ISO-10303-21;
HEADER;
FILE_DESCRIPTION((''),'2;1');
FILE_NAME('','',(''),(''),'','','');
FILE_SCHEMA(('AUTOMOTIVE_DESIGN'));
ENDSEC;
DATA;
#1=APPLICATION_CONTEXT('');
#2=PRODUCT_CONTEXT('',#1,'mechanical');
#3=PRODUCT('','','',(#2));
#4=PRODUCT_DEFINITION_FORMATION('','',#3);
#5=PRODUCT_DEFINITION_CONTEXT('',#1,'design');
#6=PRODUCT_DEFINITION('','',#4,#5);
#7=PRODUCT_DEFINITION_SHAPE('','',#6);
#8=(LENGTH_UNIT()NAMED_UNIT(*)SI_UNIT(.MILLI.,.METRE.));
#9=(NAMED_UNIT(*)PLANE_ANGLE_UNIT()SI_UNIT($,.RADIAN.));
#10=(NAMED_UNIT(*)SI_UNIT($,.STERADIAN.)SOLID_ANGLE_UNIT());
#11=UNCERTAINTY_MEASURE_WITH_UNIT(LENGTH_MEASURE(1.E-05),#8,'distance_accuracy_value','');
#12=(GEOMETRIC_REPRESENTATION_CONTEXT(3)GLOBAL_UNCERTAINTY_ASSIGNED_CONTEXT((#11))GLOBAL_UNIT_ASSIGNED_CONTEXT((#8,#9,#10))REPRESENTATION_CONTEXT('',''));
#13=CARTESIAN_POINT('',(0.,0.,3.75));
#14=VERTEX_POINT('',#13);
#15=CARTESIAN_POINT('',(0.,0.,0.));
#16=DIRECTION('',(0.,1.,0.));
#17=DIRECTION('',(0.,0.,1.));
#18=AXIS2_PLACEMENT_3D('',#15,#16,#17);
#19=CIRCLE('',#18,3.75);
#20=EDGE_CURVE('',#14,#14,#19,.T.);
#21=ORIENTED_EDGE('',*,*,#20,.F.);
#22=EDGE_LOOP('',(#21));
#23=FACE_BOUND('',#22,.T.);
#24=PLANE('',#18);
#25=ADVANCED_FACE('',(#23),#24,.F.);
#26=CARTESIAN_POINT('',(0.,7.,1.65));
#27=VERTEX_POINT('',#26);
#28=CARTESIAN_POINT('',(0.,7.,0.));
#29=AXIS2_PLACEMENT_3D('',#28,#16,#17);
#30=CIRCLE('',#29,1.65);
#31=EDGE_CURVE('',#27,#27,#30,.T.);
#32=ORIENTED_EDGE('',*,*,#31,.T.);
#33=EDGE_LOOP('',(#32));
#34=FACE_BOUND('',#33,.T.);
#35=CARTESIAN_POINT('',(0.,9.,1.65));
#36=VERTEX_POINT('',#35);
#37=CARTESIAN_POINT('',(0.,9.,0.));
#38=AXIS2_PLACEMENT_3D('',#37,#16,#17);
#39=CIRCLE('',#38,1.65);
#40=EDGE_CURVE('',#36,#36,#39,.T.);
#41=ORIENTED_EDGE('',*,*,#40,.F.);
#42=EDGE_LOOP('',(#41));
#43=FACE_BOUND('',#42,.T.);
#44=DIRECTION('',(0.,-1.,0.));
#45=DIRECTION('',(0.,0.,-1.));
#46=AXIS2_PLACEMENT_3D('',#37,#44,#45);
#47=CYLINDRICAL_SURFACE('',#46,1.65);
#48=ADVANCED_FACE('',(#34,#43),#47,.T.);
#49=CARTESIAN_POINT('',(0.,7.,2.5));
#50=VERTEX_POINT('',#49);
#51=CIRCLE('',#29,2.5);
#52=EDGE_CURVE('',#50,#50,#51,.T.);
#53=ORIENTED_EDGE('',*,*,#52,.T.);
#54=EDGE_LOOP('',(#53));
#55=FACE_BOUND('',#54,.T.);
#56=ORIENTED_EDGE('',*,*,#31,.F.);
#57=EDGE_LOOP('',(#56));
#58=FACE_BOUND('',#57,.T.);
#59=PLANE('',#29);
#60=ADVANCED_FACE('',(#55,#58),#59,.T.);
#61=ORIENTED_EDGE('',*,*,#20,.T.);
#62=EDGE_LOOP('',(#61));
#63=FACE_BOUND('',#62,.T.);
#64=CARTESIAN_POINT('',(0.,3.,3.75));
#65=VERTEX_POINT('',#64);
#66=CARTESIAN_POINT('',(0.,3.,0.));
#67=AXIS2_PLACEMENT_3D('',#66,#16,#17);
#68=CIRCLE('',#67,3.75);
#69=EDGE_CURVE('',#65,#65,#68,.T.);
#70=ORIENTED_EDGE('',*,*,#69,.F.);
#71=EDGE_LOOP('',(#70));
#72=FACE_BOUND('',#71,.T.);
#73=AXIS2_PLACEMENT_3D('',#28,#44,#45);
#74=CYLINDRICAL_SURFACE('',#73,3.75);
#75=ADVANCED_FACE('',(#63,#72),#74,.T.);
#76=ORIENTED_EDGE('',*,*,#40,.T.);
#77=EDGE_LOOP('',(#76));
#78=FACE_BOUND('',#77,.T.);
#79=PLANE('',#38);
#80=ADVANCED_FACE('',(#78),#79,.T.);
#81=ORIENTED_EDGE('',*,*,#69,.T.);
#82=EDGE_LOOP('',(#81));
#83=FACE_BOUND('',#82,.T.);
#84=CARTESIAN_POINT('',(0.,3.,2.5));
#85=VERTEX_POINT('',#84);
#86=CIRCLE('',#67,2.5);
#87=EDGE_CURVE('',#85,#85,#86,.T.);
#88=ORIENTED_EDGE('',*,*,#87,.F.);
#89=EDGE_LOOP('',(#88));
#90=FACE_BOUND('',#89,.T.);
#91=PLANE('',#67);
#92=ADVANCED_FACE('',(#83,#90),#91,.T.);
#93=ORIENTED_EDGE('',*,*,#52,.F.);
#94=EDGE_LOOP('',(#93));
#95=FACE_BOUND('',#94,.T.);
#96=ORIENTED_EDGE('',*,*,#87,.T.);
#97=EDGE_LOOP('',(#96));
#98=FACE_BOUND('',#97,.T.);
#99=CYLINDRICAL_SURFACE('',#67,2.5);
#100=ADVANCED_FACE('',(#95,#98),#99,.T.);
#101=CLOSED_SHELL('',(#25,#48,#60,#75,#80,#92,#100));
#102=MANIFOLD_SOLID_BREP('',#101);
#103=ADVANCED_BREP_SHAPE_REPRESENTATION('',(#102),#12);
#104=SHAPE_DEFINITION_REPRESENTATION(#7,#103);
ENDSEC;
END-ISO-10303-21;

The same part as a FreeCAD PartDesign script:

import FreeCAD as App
import Part
import Sketcher

doc = App.newDocument("Part")
params = doc.addObject("Spreadsheet::Sheet", "Params")
for row, (alias, value) in enumerate([
    ("sketch1_diameter", "7.5 mm"),
    ("pad1_length", "7 mm"),
    ("sketch2_diameter", "5 mm"),
    ("sketch2_diameter2", "7.5 mm"),
    ("pocket1_length", "4 mm"),
    ("sketch3_diameter", "3.3 mm"),
    ("pad2_length", "2 mm"),
], start=1):
    params.set(f"A{row}", alias)
    params.set(f"B{row}", "=" + value)
    params.setAlias(f"B{row}", alias)

body = doc.addObject("PartDesign::Body", "Body")

sketch1 = doc.addObject("Sketcher::SketchObject", "Sketch")
body.addObject(sketch1)
sketch1.AttachmentSupport = (doc.XZ_Plane, [""])
sketch1.MapMode = "FlatFace"
sketch1.addGeometry(Part.Circle(App.Vector(0, 0, 0), App.Vector(0, 0, 1), 3.8), False)
sketch1.addConstraint([
    Sketcher.Constraint("Coincident", 0, 3, -1, 1),
    Sketcher.Constraint("Diameter", 0, 7.5),
])
sketch1.setExpression("Constraints[1]", "Params.sketch1_diameter")
pad1 = doc.addObject("PartDesign::Pad", "Pad")
body.addObject(pad1)
pad1.Profile = sketch1
pad1.setExpression("Length", "Params.pad1_length")
pad1.Reversed = True

sketch2 = doc.addObject("Sketcher::SketchObject", "Sketch001")
body.addObject(sketch2)
sketch2.AttachmentSupport = (doc.XZ_Plane, [""])
sketch2.MapMode = "FlatFace"
sketch2.AttachmentOffset = App.Placement(App.Vector(0, 0, -7), App.Rotation())
sketch2.addGeometry([
    Part.Circle(App.Vector(0, 0, 0), App.Vector(0, 0, 1), 3.8),
    Part.Circle(App.Vector(0, 0, 0), App.Vector(0, 0, 1), 2.5),
], False)
sketch2.addConstraint([
    Sketcher.Constraint("Coincident", 0, 3, -1, 1),
    Sketcher.Constraint("Coincident", 1, 3, -1, 1),
    Sketcher.Constraint("Diameter", 1, 5.0),
    Sketcher.Constraint("Diameter", 0, 7.5),
])
sketch2.setExpression("Constraints[2]", "Params.sketch2_diameter")
sketch2.setExpression("Constraints[3]", "Params.sketch2_diameter2")
pocket1 = doc.addObject("PartDesign::Pocket", "Pocket")
body.addObject(pocket1)
pocket1.Profile = sketch2
pocket1.setExpression("Length", "Params.pocket1_length")
pocket1.Reversed = True

sketch3 = doc.addObject("Sketcher::SketchObject", "Sketch002")
body.addObject(sketch3)
sketch3.AttachmentSupport = (doc.XZ_Plane, [""])
sketch3.MapMode = "FlatFace"
sketch3.AttachmentOffset = App.Placement(App.Vector(0, 0, -7), App.Rotation())
sketch3.addGeometry(Part.Circle(App.Vector(0, 0, 0), App.Vector(0, 0, 1), 1.6), False)
sketch3.addConstraint([
    Sketcher.Constraint("Coincident", 0, 3, -1, 1),
    Sketcher.Constraint("Diameter", 0, 3.3),
])
sketch3.setExpression("Constraints[1]", "Params.sketch3_diameter")
pad2 = doc.addObject("PartDesign::Pad", "Pad001")
body.addObject(pad2)
pad2.Profile = sketch3
pad2.setExpression("Length", "Params.pad2_length")
pad2.Reversed = True

doc.recompute()
